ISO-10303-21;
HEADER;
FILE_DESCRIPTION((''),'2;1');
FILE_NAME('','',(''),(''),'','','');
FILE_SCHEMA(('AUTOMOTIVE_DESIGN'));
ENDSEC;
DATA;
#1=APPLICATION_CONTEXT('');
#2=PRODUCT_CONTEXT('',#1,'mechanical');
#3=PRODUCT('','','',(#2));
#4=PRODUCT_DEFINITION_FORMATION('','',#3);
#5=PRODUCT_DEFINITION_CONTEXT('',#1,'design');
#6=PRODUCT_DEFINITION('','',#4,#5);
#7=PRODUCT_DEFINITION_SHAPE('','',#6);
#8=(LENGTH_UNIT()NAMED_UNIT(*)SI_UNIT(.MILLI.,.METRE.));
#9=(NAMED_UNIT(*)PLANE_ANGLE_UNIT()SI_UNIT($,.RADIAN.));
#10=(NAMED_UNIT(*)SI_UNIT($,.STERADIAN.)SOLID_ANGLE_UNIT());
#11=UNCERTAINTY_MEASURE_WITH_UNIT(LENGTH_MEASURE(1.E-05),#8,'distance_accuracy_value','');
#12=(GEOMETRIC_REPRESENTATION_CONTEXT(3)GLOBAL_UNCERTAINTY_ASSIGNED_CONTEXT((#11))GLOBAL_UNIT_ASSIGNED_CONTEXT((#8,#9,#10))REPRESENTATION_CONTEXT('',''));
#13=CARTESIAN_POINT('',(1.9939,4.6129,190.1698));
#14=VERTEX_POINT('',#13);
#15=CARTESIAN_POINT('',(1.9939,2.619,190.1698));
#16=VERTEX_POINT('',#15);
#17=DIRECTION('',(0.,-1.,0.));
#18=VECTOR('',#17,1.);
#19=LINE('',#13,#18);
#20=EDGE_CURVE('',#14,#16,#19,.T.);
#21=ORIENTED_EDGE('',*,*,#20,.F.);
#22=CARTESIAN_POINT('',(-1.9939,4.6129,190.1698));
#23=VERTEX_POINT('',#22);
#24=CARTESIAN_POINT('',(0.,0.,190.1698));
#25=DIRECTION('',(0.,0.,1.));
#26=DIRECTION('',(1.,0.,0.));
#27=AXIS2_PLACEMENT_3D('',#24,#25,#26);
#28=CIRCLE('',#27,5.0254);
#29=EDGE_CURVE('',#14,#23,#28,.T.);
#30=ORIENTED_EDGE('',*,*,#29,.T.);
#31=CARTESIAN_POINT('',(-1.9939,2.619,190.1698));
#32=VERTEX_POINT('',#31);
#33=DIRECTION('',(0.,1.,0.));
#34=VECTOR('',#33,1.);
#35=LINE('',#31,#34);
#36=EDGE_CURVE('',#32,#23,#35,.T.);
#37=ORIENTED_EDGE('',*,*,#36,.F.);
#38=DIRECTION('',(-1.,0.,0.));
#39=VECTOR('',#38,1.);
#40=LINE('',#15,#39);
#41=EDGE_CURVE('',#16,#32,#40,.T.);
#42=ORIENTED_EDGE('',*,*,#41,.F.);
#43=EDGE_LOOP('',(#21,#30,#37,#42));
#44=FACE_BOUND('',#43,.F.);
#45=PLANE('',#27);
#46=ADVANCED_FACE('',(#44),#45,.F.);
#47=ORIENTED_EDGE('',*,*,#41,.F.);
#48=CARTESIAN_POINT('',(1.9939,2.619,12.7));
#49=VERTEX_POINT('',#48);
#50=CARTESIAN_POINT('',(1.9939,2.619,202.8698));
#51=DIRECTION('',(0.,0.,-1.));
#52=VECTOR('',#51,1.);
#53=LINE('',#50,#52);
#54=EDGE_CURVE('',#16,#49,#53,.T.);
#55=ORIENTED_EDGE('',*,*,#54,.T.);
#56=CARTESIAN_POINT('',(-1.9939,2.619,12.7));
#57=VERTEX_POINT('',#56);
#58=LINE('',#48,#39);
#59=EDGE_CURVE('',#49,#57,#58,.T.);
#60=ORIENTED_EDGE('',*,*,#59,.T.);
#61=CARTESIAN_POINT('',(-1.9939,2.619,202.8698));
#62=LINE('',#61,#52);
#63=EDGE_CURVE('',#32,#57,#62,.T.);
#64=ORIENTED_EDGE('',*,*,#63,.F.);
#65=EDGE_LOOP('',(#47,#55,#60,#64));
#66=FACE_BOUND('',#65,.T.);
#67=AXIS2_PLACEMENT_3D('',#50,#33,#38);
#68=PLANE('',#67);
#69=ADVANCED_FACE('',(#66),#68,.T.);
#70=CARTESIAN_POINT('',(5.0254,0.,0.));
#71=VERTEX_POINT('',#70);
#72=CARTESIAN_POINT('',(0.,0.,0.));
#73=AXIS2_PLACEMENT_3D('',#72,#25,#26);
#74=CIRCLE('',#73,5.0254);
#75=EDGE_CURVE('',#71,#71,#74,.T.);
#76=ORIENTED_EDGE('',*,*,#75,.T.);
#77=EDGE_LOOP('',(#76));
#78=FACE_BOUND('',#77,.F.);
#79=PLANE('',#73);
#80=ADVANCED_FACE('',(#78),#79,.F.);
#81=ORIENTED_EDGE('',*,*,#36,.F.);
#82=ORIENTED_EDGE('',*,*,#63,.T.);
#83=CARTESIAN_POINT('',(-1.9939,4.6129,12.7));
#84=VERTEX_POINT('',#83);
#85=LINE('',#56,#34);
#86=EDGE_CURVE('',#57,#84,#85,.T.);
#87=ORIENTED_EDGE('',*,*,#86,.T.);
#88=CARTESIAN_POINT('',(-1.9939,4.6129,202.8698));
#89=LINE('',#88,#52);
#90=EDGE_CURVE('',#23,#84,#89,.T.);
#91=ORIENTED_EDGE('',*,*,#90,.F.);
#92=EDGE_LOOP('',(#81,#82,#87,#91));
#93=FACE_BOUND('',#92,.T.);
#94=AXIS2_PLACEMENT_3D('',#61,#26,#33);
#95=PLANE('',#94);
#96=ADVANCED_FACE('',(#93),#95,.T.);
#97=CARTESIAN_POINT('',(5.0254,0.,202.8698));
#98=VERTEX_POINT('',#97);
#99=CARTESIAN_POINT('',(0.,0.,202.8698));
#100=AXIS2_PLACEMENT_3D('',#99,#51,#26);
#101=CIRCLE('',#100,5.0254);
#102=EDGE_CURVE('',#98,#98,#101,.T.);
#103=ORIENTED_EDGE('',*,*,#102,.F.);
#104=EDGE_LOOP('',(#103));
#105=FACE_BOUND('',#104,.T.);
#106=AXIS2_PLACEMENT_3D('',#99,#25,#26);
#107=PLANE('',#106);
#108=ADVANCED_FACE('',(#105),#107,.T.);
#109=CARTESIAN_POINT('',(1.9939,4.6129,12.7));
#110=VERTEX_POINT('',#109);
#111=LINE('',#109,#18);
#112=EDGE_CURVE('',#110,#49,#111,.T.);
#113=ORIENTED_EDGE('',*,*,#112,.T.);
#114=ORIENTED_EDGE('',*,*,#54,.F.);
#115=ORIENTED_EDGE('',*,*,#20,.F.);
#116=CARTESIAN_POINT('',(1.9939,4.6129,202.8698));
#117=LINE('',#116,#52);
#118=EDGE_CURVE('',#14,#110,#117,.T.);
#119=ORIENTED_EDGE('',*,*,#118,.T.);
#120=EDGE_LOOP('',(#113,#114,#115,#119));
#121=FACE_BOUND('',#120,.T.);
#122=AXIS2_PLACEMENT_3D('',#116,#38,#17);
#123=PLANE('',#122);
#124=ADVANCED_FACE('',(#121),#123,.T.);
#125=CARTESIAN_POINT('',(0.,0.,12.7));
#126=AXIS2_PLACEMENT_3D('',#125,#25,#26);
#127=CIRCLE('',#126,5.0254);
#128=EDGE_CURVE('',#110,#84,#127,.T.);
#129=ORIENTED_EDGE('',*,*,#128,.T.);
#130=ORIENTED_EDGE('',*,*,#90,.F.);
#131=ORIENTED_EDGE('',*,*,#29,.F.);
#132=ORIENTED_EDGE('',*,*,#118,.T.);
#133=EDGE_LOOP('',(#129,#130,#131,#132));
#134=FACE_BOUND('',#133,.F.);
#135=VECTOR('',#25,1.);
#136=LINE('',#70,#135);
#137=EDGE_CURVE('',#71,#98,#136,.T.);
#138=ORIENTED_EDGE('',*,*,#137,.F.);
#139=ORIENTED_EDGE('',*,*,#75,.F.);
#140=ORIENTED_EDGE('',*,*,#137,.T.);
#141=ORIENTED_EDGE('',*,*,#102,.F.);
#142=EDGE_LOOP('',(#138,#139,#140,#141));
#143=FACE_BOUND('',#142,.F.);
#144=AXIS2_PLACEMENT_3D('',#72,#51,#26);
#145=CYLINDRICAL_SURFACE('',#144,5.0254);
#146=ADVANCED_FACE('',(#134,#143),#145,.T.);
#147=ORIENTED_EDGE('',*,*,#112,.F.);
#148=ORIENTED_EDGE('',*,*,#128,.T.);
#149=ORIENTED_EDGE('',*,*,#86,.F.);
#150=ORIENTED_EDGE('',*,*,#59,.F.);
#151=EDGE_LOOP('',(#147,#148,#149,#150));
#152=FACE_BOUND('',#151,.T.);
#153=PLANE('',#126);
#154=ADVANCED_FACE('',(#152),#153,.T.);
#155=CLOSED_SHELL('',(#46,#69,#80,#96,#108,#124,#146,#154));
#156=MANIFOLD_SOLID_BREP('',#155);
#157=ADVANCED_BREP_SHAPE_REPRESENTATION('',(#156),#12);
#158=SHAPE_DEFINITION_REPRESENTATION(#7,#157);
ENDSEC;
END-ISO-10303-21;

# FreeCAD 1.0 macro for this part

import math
import FreeCAD as App
import Part
import Sketcher
Q = App.Units.Quantity

doc = App.newDocument("Part")
body = doc.addObject("PartDesign::Body", "Body")

# Sketch on XY plane
sketch1 = body.newObject("Sketcher::SketchObject", "Sketch")
sketch1.AttachmentSupport = (doc.getObject("XY_Plane"), [""])
sketch1.MapMode = "FlatFace"
sketch1.addGeometry(Part.Circle(App.Vector(0, 0, 0), App.Vector(0, 0, 1), 5), False)
sketch1.addConstraint(Sketcher.Constraint("Coincident", 0, 3, -1, 1))
sketch1.addConstraint(Sketcher.Constraint("Diameter", 0, Q("0.3957 in")))
pad1 = body.newObject("PartDesign::Pad", "Pad")
pad1.Profile = sketch1
pad1.Length = Q("7.987 in")

# Sketch on XY plane
sketch2 = body.newObject("Sketcher::SketchObject", "Sketch001")
sketch2.AttachmentSupport = (doc.getObject("XY_Plane"), [""])
sketch2.MapMode = "FlatFace"
sketch2.AttachmentOffset = App.Placement(App.Vector(0, 0, 7.987 * 25.4), App.Rotation())
sketch2.addGeometry(Part.ArcOfCircle(Part.Circle(App.Vector(0, 0, 0), App.Vector(0, 0, 1), 5), math.radians(67), math.radians(113)), False)
sketch2.addGeometry(Part.LineSegment(App.Vector(-2, 4.6, 0), App.Vector(-2, 2.6, 0)), False)
sketch2.addGeometry(Part.LineSegment(App.Vector(-2, 2.6, 0), App.Vector(2, 2.6, 0)), False)
sketch2.addGeometry(Part.LineSegment(App.Vector(2, 2.6, 0), App.Vector(2, 4.6, 0)), False)
sketch2.addConstraint(Sketcher.Constraint("Coincident", 0, 2, 1, 1))
sketch2.addConstraint(Sketcher.Constraint("Coincident", 1, 2, 2, 1))
sketch2.addConstraint(Sketcher.Constraint("Coincident", 2, 2, 3, 1))
sketch2.addConstraint(Sketcher.Constraint("Coincident", 3, 2, 0, 1))
sketch2.addConstraint(Sketcher.Constraint("Vertical", 1))
sketch2.addConstraint(Sketcher.Constraint("Horizontal", 2))
sketch2.addConstraint(Sketcher.Constraint("Vertical", 3))
sketch2.addConstraint(Sketcher.Constraint("Coincident", 0, 3, -1, 1))
sketch2.addConstraint(Sketcher.Constraint("Horizontal", 0, 2, 3, 2))
sketch2.addConstraint(Sketcher.Constraint("DistanceX", 2, 1, 2, 2, Q("0.157 in")))
sketch2.addConstraint(Sketcher.Constraint("DistanceY", 1, 2, 1, 1, Q("0.0785 in")))
sketch2.addConstraint(Sketcher.Constraint("Radius", 0, Q("5.0254 mm")))
pocket1 = body.newObject("PartDesign::Pocket", "Pocket")
pocket1.Profile = sketch2
pocket1.Length = Q("7.487 in")

# Sketch on XY plane
sketch3 = body.newObject("Sketcher::SketchObject", "Sketch002")
sketch3.AttachmentSupport = (doc.getObject("XY_Plane"), [""])
sketch3.MapMode = "FlatFace"
sketch3.AttachmentOffset = App.Placement(App.Vector(0, 0, 7.987 * 25.4), App.Rotation())
sketch3.addGeometry(Part.ArcOfCircle(Part.Circle(App.Vector(0, 0, 0), App.Vector(0, 0, 1), 5), math.radians(67), math.radians(113)), False)
sketch3.addGeometry(Part.LineSegment(App.Vector(-2, 4.6, 0), App.Vector(-2, 2.6, 0)), False)
sketch3.addGeometry(Part.LineSegment(App.Vector(-2, 2.6, 0), App.Vector(2, 2.6, 0)), False)
sketch3.addGeometry(Part.LineSegment(App.Vector(2, 2.6, 0), App.Vector(2, 4.6, 0)), False)
sketch3.addConstraint(Sketcher.Constraint("Coincident", 0, 2, 1, 1))
sketch3.addConstraint(Sketcher.Constraint("Coincident", 1, 2, 2, 1))
sketch3.addConstraint(Sketcher.Constraint("Coincident", 2, 2, 3, 1))
sketch3.addConstraint(Sketcher.Constraint("Coincident", 3, 2, 0, 1))
sketch3.addConstraint(Sketcher.Constraint("Vertical", 1))
sketch3.addConstraint(Sketcher.Constraint("Horizontal", 2))
sketch3.addConstraint(Sketcher.Constraint("Vertical", 3))
sketch3.addConstraint(Sketcher.Constraint("Coincident", 0, 3, -1, 1))
sketch3.addConstraint(Sketcher.Constraint("Horizontal", 0, 2, 3, 2))
sketch3.addConstraint(Sketcher.Constraint("DistanceX", 2, 1, 2, 2, Q("0.157 in")))
sketch3.addConstraint(Sketcher.Constraint("DistanceY", 1, 2, 1, 1, Q("0.0785 in")))
sketch3.addConstraint(Sketcher.Constraint("Radius", 0, Q("5.0254 mm")))
pad2 = body.newObject("PartDesign::Pad", "Pad001")
pad2.Profile = sketch3
pad2.Length = Q("0.5 in")
pad2.Reversed = True

doc.recompute()
